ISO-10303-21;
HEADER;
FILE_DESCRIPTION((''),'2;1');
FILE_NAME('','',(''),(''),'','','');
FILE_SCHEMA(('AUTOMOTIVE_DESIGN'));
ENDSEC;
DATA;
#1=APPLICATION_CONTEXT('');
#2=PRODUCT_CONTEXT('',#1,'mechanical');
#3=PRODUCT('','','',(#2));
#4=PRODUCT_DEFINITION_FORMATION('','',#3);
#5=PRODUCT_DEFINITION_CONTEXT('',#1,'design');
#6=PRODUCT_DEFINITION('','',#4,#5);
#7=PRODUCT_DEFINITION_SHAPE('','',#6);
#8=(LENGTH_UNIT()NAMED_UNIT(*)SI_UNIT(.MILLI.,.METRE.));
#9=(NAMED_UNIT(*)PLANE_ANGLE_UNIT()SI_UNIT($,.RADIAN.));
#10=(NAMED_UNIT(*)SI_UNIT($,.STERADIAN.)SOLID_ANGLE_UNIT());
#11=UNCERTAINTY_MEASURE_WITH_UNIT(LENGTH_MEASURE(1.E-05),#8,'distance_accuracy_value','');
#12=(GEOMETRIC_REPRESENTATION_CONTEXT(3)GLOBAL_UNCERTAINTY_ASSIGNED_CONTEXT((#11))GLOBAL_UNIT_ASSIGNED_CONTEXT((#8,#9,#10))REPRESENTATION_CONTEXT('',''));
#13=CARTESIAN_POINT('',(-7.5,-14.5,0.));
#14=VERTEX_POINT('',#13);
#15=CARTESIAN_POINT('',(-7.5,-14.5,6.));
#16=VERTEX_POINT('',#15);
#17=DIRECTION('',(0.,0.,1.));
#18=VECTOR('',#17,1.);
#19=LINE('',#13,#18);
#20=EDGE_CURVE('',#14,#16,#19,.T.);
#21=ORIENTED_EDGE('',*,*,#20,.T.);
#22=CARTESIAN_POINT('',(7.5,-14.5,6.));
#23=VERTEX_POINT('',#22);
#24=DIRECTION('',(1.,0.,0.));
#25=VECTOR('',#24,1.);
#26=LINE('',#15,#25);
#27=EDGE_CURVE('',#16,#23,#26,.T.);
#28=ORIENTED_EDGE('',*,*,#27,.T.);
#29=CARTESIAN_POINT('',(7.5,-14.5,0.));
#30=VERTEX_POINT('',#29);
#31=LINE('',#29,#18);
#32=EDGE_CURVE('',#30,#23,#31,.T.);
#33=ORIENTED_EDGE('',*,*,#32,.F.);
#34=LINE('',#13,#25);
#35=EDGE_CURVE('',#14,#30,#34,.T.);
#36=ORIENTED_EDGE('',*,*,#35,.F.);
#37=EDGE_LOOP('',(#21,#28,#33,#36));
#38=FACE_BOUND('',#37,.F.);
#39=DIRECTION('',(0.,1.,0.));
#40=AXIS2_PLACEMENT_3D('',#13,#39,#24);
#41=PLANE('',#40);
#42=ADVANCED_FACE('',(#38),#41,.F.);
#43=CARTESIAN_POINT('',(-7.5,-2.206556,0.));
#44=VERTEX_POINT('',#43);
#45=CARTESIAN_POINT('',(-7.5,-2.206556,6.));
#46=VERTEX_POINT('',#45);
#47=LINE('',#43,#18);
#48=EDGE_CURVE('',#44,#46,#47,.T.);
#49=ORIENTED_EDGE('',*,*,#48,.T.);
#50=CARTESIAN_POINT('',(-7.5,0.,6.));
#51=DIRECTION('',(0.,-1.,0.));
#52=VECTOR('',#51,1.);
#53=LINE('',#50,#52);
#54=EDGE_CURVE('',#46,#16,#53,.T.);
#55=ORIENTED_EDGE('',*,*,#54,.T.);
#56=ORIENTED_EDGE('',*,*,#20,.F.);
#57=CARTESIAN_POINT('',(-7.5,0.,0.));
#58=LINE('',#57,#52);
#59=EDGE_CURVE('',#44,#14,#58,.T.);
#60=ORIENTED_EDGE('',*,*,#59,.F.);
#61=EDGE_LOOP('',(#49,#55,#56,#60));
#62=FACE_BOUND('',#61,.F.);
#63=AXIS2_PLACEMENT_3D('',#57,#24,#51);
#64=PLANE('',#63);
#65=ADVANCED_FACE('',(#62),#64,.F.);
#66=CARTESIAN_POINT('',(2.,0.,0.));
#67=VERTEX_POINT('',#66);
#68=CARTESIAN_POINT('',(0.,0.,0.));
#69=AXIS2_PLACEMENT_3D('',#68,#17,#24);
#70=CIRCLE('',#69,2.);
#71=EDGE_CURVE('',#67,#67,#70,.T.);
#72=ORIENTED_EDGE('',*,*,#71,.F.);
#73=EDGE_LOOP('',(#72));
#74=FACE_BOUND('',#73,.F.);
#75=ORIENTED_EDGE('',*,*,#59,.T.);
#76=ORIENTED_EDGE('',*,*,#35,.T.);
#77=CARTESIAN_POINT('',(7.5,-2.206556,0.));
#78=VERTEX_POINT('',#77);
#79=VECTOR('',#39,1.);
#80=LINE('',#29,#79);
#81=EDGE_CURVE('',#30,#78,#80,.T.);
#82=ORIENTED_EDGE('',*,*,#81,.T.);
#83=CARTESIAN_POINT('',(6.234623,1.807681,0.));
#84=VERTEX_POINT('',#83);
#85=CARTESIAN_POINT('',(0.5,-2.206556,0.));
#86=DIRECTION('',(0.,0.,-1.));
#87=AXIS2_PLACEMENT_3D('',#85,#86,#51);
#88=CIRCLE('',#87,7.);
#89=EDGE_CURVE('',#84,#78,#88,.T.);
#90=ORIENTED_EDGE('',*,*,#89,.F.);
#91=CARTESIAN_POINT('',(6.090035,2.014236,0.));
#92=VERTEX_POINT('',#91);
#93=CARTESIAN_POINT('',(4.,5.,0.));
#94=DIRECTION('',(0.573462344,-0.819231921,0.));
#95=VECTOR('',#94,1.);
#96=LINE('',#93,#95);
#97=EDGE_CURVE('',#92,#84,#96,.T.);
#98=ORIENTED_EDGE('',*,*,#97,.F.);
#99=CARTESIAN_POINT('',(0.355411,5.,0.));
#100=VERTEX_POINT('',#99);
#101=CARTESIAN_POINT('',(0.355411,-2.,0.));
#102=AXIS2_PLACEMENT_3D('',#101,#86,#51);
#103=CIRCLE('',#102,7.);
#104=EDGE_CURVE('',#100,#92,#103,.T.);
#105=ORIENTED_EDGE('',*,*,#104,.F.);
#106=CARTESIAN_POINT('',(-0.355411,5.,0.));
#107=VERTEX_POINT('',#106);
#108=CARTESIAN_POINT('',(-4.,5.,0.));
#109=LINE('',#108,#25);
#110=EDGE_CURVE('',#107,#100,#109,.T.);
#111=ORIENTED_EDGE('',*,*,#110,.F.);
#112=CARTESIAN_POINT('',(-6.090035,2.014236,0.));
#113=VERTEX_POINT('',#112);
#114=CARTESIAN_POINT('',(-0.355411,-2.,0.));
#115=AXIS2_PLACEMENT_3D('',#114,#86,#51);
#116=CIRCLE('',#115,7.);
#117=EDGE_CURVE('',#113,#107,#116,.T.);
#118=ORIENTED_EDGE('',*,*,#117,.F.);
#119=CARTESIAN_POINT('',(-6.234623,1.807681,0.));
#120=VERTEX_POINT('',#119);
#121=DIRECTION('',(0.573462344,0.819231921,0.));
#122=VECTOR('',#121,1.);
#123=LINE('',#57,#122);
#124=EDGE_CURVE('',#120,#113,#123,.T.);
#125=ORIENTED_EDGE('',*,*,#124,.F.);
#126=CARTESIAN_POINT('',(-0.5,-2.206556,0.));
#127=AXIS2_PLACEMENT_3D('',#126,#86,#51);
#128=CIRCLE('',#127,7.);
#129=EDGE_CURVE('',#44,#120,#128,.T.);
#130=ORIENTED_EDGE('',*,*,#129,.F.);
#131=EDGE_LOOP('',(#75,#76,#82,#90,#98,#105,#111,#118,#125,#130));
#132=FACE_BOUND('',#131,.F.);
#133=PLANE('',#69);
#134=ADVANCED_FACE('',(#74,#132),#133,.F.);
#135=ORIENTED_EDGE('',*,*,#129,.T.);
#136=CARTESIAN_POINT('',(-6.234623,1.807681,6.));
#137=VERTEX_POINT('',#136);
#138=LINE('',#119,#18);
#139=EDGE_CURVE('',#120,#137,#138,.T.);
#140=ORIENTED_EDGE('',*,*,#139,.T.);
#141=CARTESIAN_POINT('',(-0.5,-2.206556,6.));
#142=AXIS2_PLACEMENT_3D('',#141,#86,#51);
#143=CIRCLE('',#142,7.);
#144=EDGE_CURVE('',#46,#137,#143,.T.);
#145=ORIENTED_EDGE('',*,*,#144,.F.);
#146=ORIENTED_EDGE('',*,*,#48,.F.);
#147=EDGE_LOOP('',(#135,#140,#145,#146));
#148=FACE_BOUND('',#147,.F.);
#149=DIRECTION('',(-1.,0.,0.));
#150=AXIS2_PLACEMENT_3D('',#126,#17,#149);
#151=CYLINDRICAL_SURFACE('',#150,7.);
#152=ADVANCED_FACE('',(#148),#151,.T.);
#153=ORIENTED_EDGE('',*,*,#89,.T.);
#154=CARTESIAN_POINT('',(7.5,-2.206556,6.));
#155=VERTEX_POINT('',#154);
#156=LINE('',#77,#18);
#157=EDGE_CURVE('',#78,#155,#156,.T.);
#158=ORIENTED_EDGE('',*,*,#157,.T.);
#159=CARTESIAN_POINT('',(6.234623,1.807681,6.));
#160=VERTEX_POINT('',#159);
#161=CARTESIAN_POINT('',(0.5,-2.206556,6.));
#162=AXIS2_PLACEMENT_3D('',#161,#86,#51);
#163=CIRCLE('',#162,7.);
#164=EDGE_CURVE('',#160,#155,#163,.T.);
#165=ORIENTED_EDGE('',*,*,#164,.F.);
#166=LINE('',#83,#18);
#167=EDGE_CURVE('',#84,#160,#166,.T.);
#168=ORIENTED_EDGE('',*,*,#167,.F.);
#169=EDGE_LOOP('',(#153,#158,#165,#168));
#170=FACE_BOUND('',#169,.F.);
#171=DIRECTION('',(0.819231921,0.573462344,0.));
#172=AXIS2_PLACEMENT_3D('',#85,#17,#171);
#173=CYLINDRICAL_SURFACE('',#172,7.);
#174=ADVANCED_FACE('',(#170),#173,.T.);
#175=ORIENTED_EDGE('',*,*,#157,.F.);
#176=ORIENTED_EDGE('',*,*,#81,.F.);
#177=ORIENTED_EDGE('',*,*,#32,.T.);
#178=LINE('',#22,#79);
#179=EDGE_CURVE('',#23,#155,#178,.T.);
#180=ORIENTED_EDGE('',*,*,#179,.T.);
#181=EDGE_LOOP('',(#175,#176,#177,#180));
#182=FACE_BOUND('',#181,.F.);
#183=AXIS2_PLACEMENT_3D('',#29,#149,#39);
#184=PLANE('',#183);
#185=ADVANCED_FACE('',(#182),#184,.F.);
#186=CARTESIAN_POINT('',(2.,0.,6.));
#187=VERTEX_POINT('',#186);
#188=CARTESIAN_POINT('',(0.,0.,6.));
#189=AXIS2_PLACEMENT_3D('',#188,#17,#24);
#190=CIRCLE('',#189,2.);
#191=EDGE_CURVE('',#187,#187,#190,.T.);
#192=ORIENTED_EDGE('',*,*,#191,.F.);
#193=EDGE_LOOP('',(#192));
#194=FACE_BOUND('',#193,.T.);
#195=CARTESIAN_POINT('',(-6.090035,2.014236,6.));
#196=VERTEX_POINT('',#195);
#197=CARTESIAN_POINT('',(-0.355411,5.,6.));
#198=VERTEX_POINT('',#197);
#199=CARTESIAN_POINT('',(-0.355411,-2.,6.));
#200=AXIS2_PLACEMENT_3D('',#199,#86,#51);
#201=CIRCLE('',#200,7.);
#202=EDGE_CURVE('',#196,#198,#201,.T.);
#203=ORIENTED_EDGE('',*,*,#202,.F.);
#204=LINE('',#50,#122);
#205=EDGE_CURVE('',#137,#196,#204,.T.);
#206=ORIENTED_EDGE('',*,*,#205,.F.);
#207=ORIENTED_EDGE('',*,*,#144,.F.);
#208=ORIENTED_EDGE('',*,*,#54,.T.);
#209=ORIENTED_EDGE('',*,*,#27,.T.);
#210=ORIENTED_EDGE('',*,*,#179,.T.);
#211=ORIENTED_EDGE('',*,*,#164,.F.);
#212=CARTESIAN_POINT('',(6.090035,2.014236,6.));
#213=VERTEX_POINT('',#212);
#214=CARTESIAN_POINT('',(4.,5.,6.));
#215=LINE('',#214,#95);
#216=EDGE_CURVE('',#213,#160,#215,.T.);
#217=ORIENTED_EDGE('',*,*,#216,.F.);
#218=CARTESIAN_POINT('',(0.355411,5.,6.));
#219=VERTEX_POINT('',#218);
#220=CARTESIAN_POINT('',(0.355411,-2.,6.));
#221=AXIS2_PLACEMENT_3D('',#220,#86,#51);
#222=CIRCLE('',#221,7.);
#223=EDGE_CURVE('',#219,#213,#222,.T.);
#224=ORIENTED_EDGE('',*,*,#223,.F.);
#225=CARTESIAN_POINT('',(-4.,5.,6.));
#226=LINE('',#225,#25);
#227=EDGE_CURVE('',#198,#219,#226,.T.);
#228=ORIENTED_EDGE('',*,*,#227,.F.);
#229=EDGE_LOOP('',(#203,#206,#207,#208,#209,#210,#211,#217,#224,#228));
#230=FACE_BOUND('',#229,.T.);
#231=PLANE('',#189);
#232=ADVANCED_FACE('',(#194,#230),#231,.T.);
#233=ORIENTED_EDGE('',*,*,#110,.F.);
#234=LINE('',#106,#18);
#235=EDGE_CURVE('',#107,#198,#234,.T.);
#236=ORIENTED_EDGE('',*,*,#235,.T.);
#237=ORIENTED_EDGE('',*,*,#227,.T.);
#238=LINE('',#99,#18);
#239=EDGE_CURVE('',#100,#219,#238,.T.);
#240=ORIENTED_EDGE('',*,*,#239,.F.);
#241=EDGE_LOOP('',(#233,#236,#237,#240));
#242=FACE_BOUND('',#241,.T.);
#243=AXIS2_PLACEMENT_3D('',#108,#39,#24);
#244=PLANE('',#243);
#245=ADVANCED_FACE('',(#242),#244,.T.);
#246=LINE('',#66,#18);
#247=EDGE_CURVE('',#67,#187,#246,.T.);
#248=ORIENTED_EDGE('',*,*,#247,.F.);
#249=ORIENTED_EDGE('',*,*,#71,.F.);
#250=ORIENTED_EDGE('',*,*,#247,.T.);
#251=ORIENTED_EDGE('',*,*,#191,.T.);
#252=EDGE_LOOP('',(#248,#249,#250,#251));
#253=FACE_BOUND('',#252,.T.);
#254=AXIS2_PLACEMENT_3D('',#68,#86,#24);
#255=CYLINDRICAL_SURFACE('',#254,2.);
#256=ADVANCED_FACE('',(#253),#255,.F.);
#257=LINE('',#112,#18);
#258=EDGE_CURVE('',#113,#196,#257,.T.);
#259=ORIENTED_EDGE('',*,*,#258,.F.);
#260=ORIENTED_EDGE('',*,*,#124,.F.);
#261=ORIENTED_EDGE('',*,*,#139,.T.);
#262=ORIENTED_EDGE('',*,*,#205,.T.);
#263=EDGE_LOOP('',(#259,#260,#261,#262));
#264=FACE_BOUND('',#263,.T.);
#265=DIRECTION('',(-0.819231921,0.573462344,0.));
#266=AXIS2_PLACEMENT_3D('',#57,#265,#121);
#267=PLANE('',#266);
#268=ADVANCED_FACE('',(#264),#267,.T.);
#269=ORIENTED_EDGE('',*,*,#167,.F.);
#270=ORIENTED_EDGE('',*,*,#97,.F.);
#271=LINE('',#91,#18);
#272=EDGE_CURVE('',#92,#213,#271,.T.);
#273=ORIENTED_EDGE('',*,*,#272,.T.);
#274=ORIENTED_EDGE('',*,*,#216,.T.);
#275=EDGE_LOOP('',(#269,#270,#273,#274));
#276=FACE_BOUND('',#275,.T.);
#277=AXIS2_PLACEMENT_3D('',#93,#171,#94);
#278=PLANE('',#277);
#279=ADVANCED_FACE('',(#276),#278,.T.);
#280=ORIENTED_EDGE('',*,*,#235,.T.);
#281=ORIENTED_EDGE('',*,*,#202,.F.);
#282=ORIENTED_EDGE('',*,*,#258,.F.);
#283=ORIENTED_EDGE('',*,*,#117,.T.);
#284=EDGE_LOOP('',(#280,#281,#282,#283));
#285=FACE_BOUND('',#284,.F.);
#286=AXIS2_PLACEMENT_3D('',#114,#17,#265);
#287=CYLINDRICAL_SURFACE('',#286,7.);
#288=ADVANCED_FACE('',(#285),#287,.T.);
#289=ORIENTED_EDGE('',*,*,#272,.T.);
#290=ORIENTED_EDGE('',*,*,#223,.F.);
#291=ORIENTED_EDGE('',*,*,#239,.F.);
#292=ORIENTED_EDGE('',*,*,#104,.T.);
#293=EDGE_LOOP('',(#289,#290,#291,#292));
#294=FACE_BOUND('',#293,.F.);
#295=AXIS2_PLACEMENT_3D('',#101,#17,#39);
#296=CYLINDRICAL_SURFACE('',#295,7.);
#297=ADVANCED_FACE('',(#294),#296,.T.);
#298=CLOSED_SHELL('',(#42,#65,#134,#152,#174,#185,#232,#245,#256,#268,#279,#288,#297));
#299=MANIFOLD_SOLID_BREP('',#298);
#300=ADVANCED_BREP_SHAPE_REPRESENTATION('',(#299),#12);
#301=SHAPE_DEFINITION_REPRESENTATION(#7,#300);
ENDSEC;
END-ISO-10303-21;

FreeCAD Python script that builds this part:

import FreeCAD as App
import Part
import Sketcher

V = App.Vector
Q = App.Units.Quantity


def edges_at(feature, points):
    """Names of the edges that pass closest to the given points."""
    edges = feature.Shape.Edges
    near = lambda p: min(range(len(edges)), key=lambda i: edges[i].distToShape(Part.Vertex(*p))[0])
    return sorted({f"Edge{near(p) + 1}" for p in points})

doc = App.newDocument("Part")
body = doc.addObject("PartDesign::Body", "Body")

# Sketch on XY plane
sketch1 = doc.addObject("Sketcher::SketchObject", "Sketch")
body.addObject(sketch1)
sketch1.AttachmentSupport = (doc.XY_Plane, [""])
sketch1.MapMode = "FlatFace"
sketch1.addGeometry(Part.LineSegment(V(-7.5, 0, 0), V(-7.5, -14.5, 0)), False)
sketch1.addGeometry(Part.LineSegment(V(-7.5, -14.5, 0), V(7.5, -14.5, 0)), False)
sketch1.addGeometry(Part.LineSegment(V(7.5, -14.5, 0), V(7.5, 0, 0)), False)
sketch1.addGeometry(Part.LineSegment(V(7.5, 0, 0), V(4, 5, 0)), False)
sketch1.addGeometry(Part.LineSegment(V(4, 5, 0), V(-4, 5, 0)), False)
sketch1.addGeometry(Part.LineSegment(V(-4, 5, 0), V(-7.5, 0, 0)), False)
sketch1.addGeometry(Part.Circle(V(0, 0, 0), V(0, 0, 1), 2), False)
sketch1.addConstraint(Sketcher.Constraint("Coincident", 0, 2, 1, 1))
sketch1.addConstraint(Sketcher.Constraint("Coincident", 1, 2, 2, 1))
sketch1.addConstraint(Sketcher.Constraint("Coincident", 2, 2, 3, 1))
sketch1.addConstraint(Sketcher.Constraint("Coincident", 3, 2, 4, 1))
sketch1.addConstraint(Sketcher.Constraint("Coincident", 4, 2, 5, 1))
sketch1.addConstraint(Sketcher.Constraint("Coincident", 5, 2, 0, 1))
sketch1.addConstraint(Sketcher.Constraint("Vertical", 0))
sketch1.addConstraint(Sketcher.Constraint("Horizontal", 1))
sketch1.addConstraint(Sketcher.Constraint("Vertical", 2))
sketch1.addConstraint(Sketcher.Constraint("Horizontal", 4))
sketch1.addConstraint(Sketcher.Constraint("Coincident", 6, 3, -1, 1))
sketch1.addConstraint(Sketcher.Constraint("Symmetric", 2, 2, 5, 2, -1, 1))
sketch1.addConstraint(Sketcher.Constraint("PointOnObject", 2, 2, -1))
sketch1.addConstraint(Sketcher.Constraint("Equal", 3, 5))
sketch1.addConstraint(Sketcher.Constraint("Diameter", 6, Q("4 mm")))
sketch1.addConstraint(Sketcher.Constraint("DistanceX", 1, 1, 1, 2, Q("15 mm")))
sketch1.addConstraint(Sketcher.Constraint("DistanceX", 4, 2, 4, 1, Q("8 mm")))
sketch1.addConstraint(Sketcher.Constraint("DistanceY", 0, 2, 0, 1, Q("14.5 mm")))
sketch1.addConstraint(Sketcher.Constraint("DistanceY", -1, 1, 3, 2, Q("5 mm")))
pad1 = doc.addObject("PartDesign::Pad", "Pad")
body.addObject(pad1)
pad1.Profile = sketch1
pad1.Length = 6
doc.recompute()

fillet = doc.addObject("PartDesign::Fillet", "Fillet")
body.addObject(fillet)
fillet.Base = (pad1, edges_at(pad1, [
    (-7.5, 0, 3),
    (-4, 5, 3),
    (4, 5, 3),
    (7.5, 0, 3),
]))
fillet.Radius = 7

doc.recompute()
